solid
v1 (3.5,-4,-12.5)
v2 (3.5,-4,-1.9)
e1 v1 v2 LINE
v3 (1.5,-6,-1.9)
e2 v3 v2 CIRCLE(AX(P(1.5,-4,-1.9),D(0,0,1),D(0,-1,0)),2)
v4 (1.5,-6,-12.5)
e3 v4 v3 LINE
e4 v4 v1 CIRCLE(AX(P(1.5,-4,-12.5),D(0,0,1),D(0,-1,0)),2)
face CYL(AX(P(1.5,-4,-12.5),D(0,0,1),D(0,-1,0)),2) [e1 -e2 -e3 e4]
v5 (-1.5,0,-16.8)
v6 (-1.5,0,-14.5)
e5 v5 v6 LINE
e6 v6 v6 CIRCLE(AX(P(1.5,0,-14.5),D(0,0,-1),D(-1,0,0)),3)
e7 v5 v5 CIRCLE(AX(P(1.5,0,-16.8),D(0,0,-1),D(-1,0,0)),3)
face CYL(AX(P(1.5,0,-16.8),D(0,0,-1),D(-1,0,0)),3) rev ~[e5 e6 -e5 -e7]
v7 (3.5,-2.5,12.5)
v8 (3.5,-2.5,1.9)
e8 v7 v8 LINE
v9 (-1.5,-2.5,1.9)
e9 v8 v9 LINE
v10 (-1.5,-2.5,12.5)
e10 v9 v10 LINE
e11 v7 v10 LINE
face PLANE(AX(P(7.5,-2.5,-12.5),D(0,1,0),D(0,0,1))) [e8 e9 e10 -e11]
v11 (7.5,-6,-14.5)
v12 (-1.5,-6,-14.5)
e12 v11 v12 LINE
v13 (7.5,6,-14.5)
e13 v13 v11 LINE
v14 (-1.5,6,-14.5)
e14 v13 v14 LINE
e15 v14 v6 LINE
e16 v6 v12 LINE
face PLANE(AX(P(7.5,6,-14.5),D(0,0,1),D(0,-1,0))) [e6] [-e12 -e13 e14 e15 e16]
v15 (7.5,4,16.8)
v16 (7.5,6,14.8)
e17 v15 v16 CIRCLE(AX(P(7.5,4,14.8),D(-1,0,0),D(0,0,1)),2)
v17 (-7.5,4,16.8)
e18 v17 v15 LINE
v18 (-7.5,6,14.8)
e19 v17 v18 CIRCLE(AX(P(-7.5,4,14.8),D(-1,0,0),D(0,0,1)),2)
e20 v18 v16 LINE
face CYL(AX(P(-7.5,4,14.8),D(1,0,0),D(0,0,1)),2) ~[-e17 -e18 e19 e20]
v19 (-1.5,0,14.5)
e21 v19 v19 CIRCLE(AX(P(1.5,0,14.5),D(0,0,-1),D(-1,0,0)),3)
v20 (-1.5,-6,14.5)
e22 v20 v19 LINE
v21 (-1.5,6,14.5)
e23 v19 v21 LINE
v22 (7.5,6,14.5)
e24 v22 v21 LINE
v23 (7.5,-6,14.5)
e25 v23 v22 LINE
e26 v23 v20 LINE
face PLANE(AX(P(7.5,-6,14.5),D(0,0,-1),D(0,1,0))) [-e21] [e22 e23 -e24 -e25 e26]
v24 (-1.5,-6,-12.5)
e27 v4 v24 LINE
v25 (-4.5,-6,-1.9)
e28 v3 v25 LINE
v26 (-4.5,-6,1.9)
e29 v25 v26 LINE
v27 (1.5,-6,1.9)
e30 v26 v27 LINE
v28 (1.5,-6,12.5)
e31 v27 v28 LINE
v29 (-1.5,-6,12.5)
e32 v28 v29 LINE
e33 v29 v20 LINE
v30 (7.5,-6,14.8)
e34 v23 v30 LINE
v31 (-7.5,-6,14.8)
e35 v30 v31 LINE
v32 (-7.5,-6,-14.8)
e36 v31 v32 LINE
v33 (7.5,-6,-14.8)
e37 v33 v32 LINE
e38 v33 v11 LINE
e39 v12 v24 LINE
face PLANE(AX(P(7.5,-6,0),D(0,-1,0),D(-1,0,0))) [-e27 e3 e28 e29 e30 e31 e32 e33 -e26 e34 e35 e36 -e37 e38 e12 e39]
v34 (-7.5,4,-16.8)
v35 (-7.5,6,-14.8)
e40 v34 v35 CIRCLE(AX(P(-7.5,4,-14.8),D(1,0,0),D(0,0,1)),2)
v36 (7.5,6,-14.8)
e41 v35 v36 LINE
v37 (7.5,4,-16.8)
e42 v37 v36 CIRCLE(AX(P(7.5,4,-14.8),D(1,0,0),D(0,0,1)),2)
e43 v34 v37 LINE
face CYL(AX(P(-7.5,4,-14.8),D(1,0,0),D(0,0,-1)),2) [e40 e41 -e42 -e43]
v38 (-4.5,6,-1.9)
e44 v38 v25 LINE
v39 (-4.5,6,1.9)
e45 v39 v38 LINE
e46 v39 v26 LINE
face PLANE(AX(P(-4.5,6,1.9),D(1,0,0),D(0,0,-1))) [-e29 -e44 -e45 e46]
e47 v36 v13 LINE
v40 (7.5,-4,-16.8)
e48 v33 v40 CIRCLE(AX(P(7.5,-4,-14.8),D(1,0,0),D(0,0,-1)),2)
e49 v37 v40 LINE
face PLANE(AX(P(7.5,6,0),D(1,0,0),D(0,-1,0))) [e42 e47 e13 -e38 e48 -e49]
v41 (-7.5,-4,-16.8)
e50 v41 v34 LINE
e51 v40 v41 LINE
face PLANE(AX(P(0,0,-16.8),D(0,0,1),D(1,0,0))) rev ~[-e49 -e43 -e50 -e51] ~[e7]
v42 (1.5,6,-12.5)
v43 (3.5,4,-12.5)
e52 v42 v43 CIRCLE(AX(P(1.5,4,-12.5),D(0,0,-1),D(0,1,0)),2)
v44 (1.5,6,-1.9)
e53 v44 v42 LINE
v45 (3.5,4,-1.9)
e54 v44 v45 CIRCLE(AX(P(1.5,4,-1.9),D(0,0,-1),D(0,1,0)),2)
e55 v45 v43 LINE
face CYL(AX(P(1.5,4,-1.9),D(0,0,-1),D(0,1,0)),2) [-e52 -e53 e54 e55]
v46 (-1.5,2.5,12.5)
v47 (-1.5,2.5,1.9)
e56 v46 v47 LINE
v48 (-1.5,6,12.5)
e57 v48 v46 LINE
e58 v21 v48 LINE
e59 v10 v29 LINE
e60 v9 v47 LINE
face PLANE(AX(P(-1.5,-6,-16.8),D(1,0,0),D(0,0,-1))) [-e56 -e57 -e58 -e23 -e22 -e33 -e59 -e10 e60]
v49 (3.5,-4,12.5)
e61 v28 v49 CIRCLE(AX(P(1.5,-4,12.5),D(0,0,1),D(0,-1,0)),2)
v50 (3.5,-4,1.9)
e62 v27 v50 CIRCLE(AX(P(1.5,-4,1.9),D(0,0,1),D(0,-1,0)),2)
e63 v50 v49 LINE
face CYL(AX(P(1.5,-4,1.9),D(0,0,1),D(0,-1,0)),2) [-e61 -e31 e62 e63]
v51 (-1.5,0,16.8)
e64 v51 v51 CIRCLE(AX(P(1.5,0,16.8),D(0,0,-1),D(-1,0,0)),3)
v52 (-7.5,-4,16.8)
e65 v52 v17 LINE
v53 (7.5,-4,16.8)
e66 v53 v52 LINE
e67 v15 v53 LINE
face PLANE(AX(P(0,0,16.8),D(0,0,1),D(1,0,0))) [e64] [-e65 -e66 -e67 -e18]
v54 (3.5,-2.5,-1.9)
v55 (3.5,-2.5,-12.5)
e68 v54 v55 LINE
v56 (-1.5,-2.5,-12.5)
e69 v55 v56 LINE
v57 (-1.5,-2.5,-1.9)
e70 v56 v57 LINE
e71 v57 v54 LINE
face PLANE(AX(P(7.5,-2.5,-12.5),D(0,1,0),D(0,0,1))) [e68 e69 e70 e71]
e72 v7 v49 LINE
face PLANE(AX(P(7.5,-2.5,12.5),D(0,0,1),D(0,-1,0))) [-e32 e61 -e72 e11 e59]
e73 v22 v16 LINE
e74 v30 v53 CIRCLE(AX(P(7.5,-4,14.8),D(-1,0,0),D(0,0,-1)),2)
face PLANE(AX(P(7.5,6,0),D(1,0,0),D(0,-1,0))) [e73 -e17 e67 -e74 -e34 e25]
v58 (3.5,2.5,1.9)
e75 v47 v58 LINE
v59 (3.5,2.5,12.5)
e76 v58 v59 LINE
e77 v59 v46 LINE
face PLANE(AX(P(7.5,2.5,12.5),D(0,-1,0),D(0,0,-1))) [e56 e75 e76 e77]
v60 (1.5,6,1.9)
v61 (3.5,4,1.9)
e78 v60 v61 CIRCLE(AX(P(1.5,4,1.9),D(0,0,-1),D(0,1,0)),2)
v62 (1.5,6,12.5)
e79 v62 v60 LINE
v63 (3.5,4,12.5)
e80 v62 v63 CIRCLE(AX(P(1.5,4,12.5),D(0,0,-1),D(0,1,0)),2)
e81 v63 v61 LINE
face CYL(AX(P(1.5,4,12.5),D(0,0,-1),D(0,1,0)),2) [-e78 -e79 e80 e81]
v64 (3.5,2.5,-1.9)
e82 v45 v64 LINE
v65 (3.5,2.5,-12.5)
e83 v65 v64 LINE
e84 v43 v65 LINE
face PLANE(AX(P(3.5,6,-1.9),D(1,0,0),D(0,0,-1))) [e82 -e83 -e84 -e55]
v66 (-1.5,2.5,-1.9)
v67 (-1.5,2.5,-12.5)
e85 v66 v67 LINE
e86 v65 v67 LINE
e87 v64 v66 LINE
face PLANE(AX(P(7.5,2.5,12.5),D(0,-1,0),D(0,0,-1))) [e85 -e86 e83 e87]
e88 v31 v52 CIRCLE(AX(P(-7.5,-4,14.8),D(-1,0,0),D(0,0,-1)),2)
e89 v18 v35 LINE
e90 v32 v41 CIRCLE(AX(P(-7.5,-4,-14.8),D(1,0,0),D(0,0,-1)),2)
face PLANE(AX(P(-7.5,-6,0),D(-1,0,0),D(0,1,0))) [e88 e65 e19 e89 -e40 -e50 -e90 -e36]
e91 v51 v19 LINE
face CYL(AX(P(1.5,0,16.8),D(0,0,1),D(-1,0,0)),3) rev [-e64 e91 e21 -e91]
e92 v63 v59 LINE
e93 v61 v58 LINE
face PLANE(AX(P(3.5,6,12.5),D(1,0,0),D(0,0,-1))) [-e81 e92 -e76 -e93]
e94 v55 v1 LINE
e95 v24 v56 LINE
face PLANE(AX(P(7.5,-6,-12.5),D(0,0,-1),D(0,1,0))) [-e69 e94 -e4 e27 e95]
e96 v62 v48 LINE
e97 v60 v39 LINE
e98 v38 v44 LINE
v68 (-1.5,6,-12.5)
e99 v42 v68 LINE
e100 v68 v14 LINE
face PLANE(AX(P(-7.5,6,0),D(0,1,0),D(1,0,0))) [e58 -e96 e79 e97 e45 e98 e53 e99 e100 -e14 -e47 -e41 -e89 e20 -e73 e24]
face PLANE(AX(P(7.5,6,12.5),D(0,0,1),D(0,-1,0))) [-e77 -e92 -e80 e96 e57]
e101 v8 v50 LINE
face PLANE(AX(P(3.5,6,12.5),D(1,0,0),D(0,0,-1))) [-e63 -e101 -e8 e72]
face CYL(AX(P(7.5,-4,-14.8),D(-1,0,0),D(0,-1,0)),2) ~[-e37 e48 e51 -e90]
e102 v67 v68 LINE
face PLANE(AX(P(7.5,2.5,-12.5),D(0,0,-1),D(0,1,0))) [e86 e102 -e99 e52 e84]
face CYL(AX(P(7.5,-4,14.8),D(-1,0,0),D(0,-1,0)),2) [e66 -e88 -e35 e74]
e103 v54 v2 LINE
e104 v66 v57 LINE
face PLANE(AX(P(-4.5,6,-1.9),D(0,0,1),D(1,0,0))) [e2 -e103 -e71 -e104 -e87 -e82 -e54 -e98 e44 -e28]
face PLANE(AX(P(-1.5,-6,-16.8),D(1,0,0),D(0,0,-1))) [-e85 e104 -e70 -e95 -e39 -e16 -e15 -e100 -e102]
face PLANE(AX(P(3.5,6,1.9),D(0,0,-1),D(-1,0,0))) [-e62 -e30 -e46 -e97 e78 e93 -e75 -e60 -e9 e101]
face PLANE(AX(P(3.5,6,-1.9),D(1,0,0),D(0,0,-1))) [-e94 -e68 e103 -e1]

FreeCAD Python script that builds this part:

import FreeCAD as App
import Part
import Sketcher

V = App.Vector
Q = App.Units.Quantity


def edges_at(feature, points):
    """Names of the edges that pass closest to the given points."""
    edges = feature.Shape.Edges
    near = lambda p: min(range(len(edges)), key=lambda i: edges[i].distToShape(Part.Vertex(*p))[0])
    return sorted({f"Edge{near(p) + 1}" for p in points})

doc = App.newDocument("Part")
params = doc.addObject("Spreadsheet::Sheet", "Params")
for row, (alias, value) in enumerate([
    ("sketch1_width", "15 mm"),
    ("sketch1_height", "12 mm"),
    ("pad1_length", "33.6 mm"),
    ("sketch2_width", "12 mm"),
    ("sketch2_height", "25 mm"),
    ("sketch2_height2", "2 mm"),
    ("pocket1_length", "9 mm"),
    ("sketch3_diameter", "6 mm"),
    ("pocket2_length", "2.3 mm"),
    ("sketch4_width", "4 mm"),
    ("sketch4_width2", "8 mm"),
    ("sketch4_height", "3.8 mm"),
    ("sketch4_height2", "25 mm"),
    ("fillet_radius", "2 mm"),
], start=1):
    params.set(f"A{row}", alias)
    params.set(f"B{row}", "=" + value)
    params.setAlias(f"B{row}", alias)

body = doc.addObject("PartDesign::Body", "Body")

sketch1 = doc.addObject("Sketcher::SketchObject", "Sketch")
body.addObject(sketch1)
sketch1.AttachmentSupport = (doc.XY_Plane, [""])
sketch1.MapMode = "FlatFace"
sketch1.addGeometry([
    Part.LineSegment(V(-7.5, -6, 0), V(7.5, -6, 0)),
    Part.LineSegment(V(7.5, -6, 0), V(7.5, 6, 0)),
    Part.LineSegment(V(7.5, 6, 0), V(-7.5, 6, 0)),
    Part.LineSegment(V(-7.5, 6, 0), V(-7.5, -6, 0)),
], False)
sketch1.addConstraint([
    Sketcher.Constraint("Coincident", 0, 2, 1, 1),
    Sketcher.Constraint("Coincident", 1, 2, 2, 1),
    Sketcher.Constraint("Coincident", 2, 2, 3, 1),
    Sketcher.Constraint("Coincident", 3, 2, 0, 1),
    Sketcher.Constraint("Horizontal", 0),
    Sketcher.Constraint("Vertical", 1),
    Sketcher.Constraint("Horizontal", 2),
    Sketcher.Constraint("Vertical", 3),
    Sketcher.Constraint("Symmetric", 0, 2, 2, 2, -1, 1),
    Sketcher.Constraint("DistanceX", 0, 1, 0, 2, Q("15 mm")),
    Sketcher.Constraint("DistanceY", 1, 1, 1, 2, Q("12 mm")),
])
sketch1.setExpression("Constraints[9]", "Params.sketch1_width")
sketch1.setExpression("Constraints[10]", "Params.sketch1_height")
pad1 = doc.addObject("PartDesign::Pad", "Pad")
body.addObject(pad1)
pad1.Profile = sketch1
pad1.setExpression("Length", "Params.pad1_length")
pad1.Midplane = True

sketch2 = doc.addObject("Sketcher::SketchObject", "Sketch001")
body.addObject(sketch2)
sketch2.AttachmentSupport = (doc.YZ_Plane, [""])
sketch2.MapMode = "FlatFace"
sketch2.AttachmentOffset = App.Placement(V(0, 0, 7.5), App.Rotation())
sketch2.addGeometry([
    Part.LineSegment(V(2.5, -12.5, 0), V(2.5, 12.5, 0)),
    Part.LineSegment(V(2.5, 12.5, 0), V(6, 12.5, 0)),
    Part.LineSegment(V(6, 12.5, 0), V(6, 14.5, 0)),
    Part.LineSegment(V(6, 14.5, 0), V(-6, 14.5, 0)),
    Part.LineSegment(V(-6, 14.5, 0), V(-6, 12.5, 0)),
    Part.LineSegment(V(-6, 12.5, 0), V(-2.5, 12.5, 0)),
    Part.LineSegment(V(-2.5, 12.5, 0), V(-2.5, -12.5, 0)),
    Part.LineSegment(V(-2.5, -12.5, 0), V(-6, -12.5, 0)),
    Part.LineSegment(V(-6, -12.5, 0), V(-6, -14.5, 0)),
    Part.LineSegment(V(-6, -14.5, 0), V(6, -14.5, 0)),
    Part.LineSegment(V(6, -14.5, 0), V(6, -12.5, 0)),
    Part.LineSegment(V(6, -12.5, 0), V(2.5, -12.5, 0)),
], False)
sketch2.addConstraint([
    Sketcher.Constraint("Coincident", 0, 2, 1, 1),
    Sketcher.Constraint("Coincident", 1, 2, 2, 1),
    Sketcher.Constraint("Coincident", 2, 2, 3, 1),
    Sketcher.Constraint("Coincident", 3, 2, 4, 1),
    Sketcher.Constraint("Coincident", 4, 2, 5, 1),
    Sketcher.Constraint("Coincident", 5, 2, 6, 1),
    Sketcher.Constraint("Coincident", 6, 2, 7, 1),
    Sketcher.Constraint("Coincident", 7, 2, 8, 1),
    Sketcher.Constraint("Coincident", 8, 2, 9, 1),
    Sketcher.Constraint("Coincident", 9, 2, 10, 1),
    Sketcher.Constraint("Coincident", 10, 2, 11, 1),
    Sketcher.Constraint("Coincident", 11, 2, 0, 1),
    Sketcher.Constraint("Vertical", 0),
    Sketcher.Constraint("Horizontal", 1),
    Sketcher.Constraint("Vertical", 2),
    Sketcher.Constraint("Horizontal", 3),
    Sketcher.Constraint("Vertical", 4),
    Sketcher.Constraint("Horizontal", 5),
    Sketcher.Constraint("Vertical", 6),
    Sketcher.Constraint("Horizontal", 7),
    Sketcher.Constraint("Vertical", 8),
    Sketcher.Constraint("Horizontal", 9),
    Sketcher.Constraint("Vertical", 10),
    Sketcher.Constraint("Horizontal", 11),
    Sketcher.Constraint("Symmetric", 0, 2, 6, 2, -1, 1),
    Sketcher.Constraint("Symmetric", 2, 2, 8, 2, -1, 1),
    Sketcher.Constraint("Symmetric", 4, 2, 10, 2, -1, 1),
    Sketcher.Constraint("Symmetric", 1, 2, 4, 2, -2),
    Sketcher.Constraint("DistanceX", 3, 2, 3, 1, Q("12 mm")),
    Sketcher.Constraint("DistanceY", 0, 1, 0, 2, Q("25 mm")),
    Sketcher.Constraint("DistanceY", 2, 1, 2, 2, Q("2 mm")),
    Sketcher.Constraint("DistanceX", 5, 2, 0, 2, Q("5 mm")),
])
sketch2.setExpression("Constraints[28]", "Params.sketch2_width")
sketch2.setExpression("Constraints[29]", "Params.sketch2_height")
sketch2.setExpression("Constraints[30]", "Params.sketch2_height2")
pocket1 = doc.addObject("PartDesign::Pocket", "Pocket")
body.addObject(pocket1)
pocket1.Profile = sketch2
pocket1.setExpression("Length", "Params.pocket1_length")

sketch3 = doc.addObject("Sketcher::SketchObject", "Sketch002")
body.addObject(sketch3)
sketch3.AttachmentSupport = (doc.XY_Plane, [""])
sketch3.MapMode = "FlatFace"
sketch3.AttachmentOffset = App.Placement(V(0, 0, -16.8), App.Rotation())
sketch3.addGeometry(Part.Circle(V(1.5, 0, 0), V(0, 0, 1), 3), False)
sketch3.addConstraint([
    Sketcher.Constraint("PointOnObject", 0, 3, -1),
    Sketcher.Constraint("Diameter", 0, Q("6 mm")),
    Sketcher.Constraint("DistanceX", -1, 1, 0, 3, Q("1.5 mm")),
])
sketch3.setExpression("Constraints[1]", "Params.sketch3_diameter")
pocket2 = doc.addObject("PartDesign::Pocket", "Pocket001")
body.addObject(pocket2)
pocket2.Profile = sketch3
pocket2.setExpression("Length", "Params.pocket2_length")
pocket2.Reversed = True
doc.recompute()

mirrored = doc.addObject("PartDesign::Mirrored", "Mirrored")
body.addObject(mirrored)
mirrored.Originals = [pocket2]
mirrored.MirrorPlane = (doc.XY_Plane, [""])
body.Tip = mirrored

sketch4 = doc.addObject("Sketcher::SketchObject", "Sketch003")
body.addObject(sketch4)
sketch4.AttachmentSupport = (doc.XZ_Plane, [""])
sketch4.MapMode = "FlatFace"
sketch4.AttachmentOffset = App.Placement(V(0, 0, -6), App.Rotation())
sketch4.addGeometry([
    Part.LineSegment(V(7.5, 12.5, 0), V(7.5, -12.5, 0)),
    Part.LineSegment(V(7.5, -12.5, 0), V(3.5, -12.5, 0)),
    Part.LineSegment(V(3.5, -12.5, 0), V(3.5, -1.9, 0)),
    Part.LineSegment(V(3.5, -1.9, 0), V(-4.5, -1.9, 0)),
    Part.LineSegment(V(-4.5, -1.9, 0), V(-4.5, 1.9, 0)),
    Part.LineSegment(V(-4.5, 1.9, 0), V(3.5, 1.9, 0)),
    Part.LineSegment(V(3.5, 1.9, 0), V(3.5, 12.5, 0)),
    Part.LineSegment(V(3.5, 12.5, 0), V(7.5, 12.5, 0)),
], False)
sketch4.addConstraint([
    Sketcher.Constraint("Coincident", 0, 2, 1, 1),
    Sketcher.Constraint("Coincident", 1, 2, 2, 1),
    Sketcher.Constraint("Coincident", 2, 2, 3, 1),
    Sketcher.Constraint("Coincident", 3, 2, 4, 1),
    Sketcher.Constraint("Coincident", 4, 2, 5, 1),
    Sketcher.Constraint("Coincident", 5, 2, 6, 1),
    Sketcher.Constraint("Coincident", 6, 2, 7, 1),
    Sketcher.Constraint("Coincident", 7, 2, 0, 1),
    Sketcher.Constraint("Vertical", 0),
    Sketcher.Constraint("Horizontal", 1),
    Sketcher.Constraint("Vertical", 2),
    Sketcher.Constraint("Horizontal", 3),
    Sketcher.Constraint("Vertical", 4),
    Sketcher.Constraint("Horizontal", 5),
    Sketcher.Constraint("Vertical", 6),
    Sketcher.Constraint("Horizontal", 7),
    Sketcher.Constraint("Symmetric", 2, 2, 5, 2, -1),
    Sketcher.Constraint("Equal", 2, 6),
    Sketcher.Constraint("DistanceX", 1, 2, 1, 1, Q("4 mm")),
    Sketcher.Constraint("DistanceX", 3, 2, 3, 1, Q("8 mm")),
    Sketcher.Constraint("DistanceY", 4, 1, 4, 2, Q("3.8 mm")),
    Sketcher.Constraint("DistanceY", 0, 2, 0, 1, Q("25 mm")),
    Sketcher.Constraint("DistanceX", -1, 1, 0, 2, Q("7.5 mm")),
])
sketch4.setExpression("Constraints[18]", "Params.sketch4_width")
sketch4.setExpression("Constraints[19]", "Params.sketch4_width2")
sketch4.setExpression("Constraints[20]", "Params.sketch4_height")
sketch4.setExpression("Constraints[21]", "Params.sketch4_height2")
pocket3 = doc.addObject("PartDesign::Pocket", "Pocket002")
body.addObject(pocket3)
pocket3.Profile = sketch4
pocket3.Type = "ThroughAll"
pocket3.Reversed = True
doc.recompute()

fillet = doc.addObject("PartDesign::Fillet", "Fillet")
body.addObject(fillet)
fillet.Base = (pocket3, edges_at(pocket3, [
    (0, 6, -16.8),
    (0, -6, -16.8),
    (0, 6, 16.8),
    (0, -6, 16.8),
    (3.5, 6, 7.2),
    (3.5, 6, -7.2),
    (3.5, -6, -7.2),
    (3.5, -6, 7.2),
]))
fillet.setExpression("Radius", "Params.fillet_radius")

doc.recompute()
